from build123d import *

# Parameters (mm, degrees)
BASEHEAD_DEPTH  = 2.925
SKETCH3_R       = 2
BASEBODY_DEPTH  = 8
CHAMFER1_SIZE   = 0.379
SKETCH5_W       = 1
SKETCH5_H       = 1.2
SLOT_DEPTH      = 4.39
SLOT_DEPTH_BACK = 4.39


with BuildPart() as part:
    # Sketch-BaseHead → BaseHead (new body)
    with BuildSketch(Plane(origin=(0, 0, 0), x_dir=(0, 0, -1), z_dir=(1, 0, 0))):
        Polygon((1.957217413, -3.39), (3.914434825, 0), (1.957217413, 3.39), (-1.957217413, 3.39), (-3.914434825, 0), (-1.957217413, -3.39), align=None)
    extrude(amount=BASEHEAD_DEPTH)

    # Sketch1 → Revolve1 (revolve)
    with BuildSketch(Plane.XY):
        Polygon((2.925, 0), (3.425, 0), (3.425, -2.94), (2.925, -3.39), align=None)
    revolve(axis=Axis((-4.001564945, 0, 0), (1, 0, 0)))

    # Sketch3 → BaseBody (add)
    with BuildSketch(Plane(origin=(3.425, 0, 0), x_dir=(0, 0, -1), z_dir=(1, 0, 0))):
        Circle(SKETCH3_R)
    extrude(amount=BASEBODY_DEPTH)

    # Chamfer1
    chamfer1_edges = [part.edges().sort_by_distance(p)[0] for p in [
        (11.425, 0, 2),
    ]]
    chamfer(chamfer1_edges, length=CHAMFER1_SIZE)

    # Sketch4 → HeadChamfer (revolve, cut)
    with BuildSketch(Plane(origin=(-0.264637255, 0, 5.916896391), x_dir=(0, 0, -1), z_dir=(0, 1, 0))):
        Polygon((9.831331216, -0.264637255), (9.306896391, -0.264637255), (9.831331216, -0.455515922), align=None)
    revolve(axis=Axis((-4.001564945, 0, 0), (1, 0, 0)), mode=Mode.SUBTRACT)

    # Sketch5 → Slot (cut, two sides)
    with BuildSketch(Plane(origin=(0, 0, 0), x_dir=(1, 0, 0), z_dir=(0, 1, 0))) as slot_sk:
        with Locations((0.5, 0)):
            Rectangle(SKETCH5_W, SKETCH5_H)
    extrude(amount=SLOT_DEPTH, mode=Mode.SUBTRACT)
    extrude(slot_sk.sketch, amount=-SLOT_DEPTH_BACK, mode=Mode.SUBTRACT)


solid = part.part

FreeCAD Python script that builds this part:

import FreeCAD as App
import Part
import Sketcher
from FreeCAD import Vector
Q = App.Units.Quantity


def edges_at(feature, points):
    """Names of the edges that pass closest to the given points."""
    edges = feature.Shape.Edges
    near = lambda p: min(range(len(edges)), key=lambda i: edges[i].distToShape(Part.Vertex(*p))[0])
    return sorted({f"Edge{near(p) + 1}" for p in points})

doc = App.newDocument("Part")
body = doc.addObject("PartDesign::Body", "Body")

# Sketch on YZ plane
sketch1 = body.newObject("Sketcher::SketchObject", "Sketch")
sketch1.AttachmentSupport = (doc.getObject("YZ_Plane"), [""])
sketch1.MapMode = "FlatFace"
sketch1.addGeometry([
    Part.LineSegment(Vector(-3.39, -1.957217, 0), Vector(0, -3.914435, 0)),  # 0
    Part.LineSegment(Vector(0, -3.914435, 0), Vector(3.39, -1.957217, 0)),  # 1
    Part.LineSegment(Vector(3.39, -1.957217, 0), Vector(3.39, 1.957217, 0)),  # 2
    Part.LineSegment(Vector(3.39, 1.957217, 0), Vector(0, 3.914435, 0)),  # 3
    Part.LineSegment(Vector(0, 3.914435, 0), Vector(-3.39, 1.957217, 0)),  # 4
    Part.LineSegment(Vector(-3.39, 1.957217, 0), Vector(-3.39, -1.957217, 0)),  # 5
], False)
sketch1.addConstraint([
    Sketcher.Constraint("Coincident", 0, 2, 1, 1),
    Sketcher.Constraint("Coincident", 1, 2, 2, 1),
    Sketcher.Constraint("Coincident", 2, 2, 3, 1),
    Sketcher.Constraint("Coincident", 3, 2, 4, 1),
    Sketcher.Constraint("Coincident", 4, 2, 5, 1),
    Sketcher.Constraint("Coincident", 5, 2, 0, 1),
    Sketcher.Constraint("Vertical", 2),
    Sketcher.Constraint("Vertical", 5),
    Sketcher.Constraint("Symmetric", 0, 2, 3, 2, -1, 1),
    Sketcher.Constraint("Symmetric", 1, 2, 4, 2, -1, 1),
    Sketcher.Constraint("PointOnObject", 0, 2, -2),
    Sketcher.Constraint("Parallel", 0, 3),
    Sketcher.Constraint("Horizontal", 2, 2, 4, 2),
    Sketcher.Constraint("Angle", 0, Q("-30 deg")),
    Sketcher.Constraint("DistanceX", -1, 1, 1, 2, Q("3.39 mm")),
    Sketcher.Constraint("DistanceY", 2, 1, 2, 2, Q("3.914435 mm")),
])
pad1 = body.newObject("PartDesign::Pad", "Pad")
pad1.Profile = sketch1
pad1.Length = 2.925

# Sketch on XY plane
sketch2 = body.newObject("Sketcher::SketchObject", "Sketch001")
sketch2.AttachmentSupport = (doc.getObject("XY_Plane"), [""])
sketch2.MapMode = "FlatFace"
sketch2.addGeometry([
    Part.LineSegment(Vector(3.425, 0, 0), Vector(2.925, 0, 0)),
    Part.LineSegment(Vector(2.925, 0, 0), Vector(2.925, -3.39, 0)),
    Part.LineSegment(Vector(2.925, -3.39, 0), Vector(3.425, -2.94, 0)),
    Part.LineSegment(Vector(3.425, -2.94, 0), Vector(3.425, 0, 0)),
], False)
sketch2.addConstraint([
    Sketcher.Constraint("Coincident", 0, 2, 1, 1),
    Sketcher.Constraint("Coincident", 1, 2, 2, 1),
    Sketcher.Constraint("Coincident", 2, 2, 3, 1),
    Sketcher.Constraint("Coincident", 3, 2, 0, 1),
    Sketcher.Constraint("Horizontal", 0),
    Sketcher.Constraint("Vertical", 1),
    Sketcher.Constraint("Vertical", 3),
    Sketcher.Constraint("PointOnObject", 0, 2, -1),
    Sketcher.Constraint("DistanceX", 0, 2, 0, 1, Q("0.5 mm")),
    Sketcher.Constraint("DistanceY", 1, 2, 1, 1, Q("3.39 mm")),
    Sketcher.Constraint("DistanceY", 3, 1, 3, 2, Q("2.94 mm")),
    Sketcher.Constraint("DistanceX", -1, 1, 0, 2, Q("2.925 mm")),
])
revolution = body.newObject("PartDesign::Revolution", "Revolution")
revolution.Profile = sketch2
revolution.ReferenceAxis = (sketch2, ["H_Axis"])
revolution.Angle = 360

# Sketch on YZ plane
sketch3 = body.newObject("Sketcher::SketchObject", "Sketch002")
sketch3.AttachmentSupport = (doc.getObject("YZ_Plane"), [""])
sketch3.MapMode = "FlatFace"
sketch3.AttachmentOffset = App.Placement(Vector(0, 0, 3.425), App.Rotation())
sketch3.addGeometry(Part.Circle(Vector(0, 0, 0), Vector(0, 0, 1), 2), False)
sketch3.addConstraint([
    Sketcher.Constraint("Coincident", 0, 3, -1, 1),
    Sketcher.Constraint("Diameter", 0, Q("4 mm")),
])
pad2 = body.newObject("PartDesign::Pad", "Pad001")
pad2.Profile = sketch3
pad2.Length = 8
doc.recompute()

chamfer = body.newObject("PartDesign::Chamfer", "Chamfer")
chamfer.Base = (pad2, edges_at(pad2, [(11.425, 0, 2)]))
chamfer.Size = 0.379

# Sketch on XZ plane
sketch4 = body.newObject("Sketcher::SketchObject", "Sketch003")
sketch4.AttachmentSupport = (doc.getObject("XZ_Plane"), [""])
sketch4.MapMode = "FlatFace"
sketch4.addGeometry([
    Part.LineSegment(Vector(0, -3.914435, 0), Vector(0, -3.39, 0)),
    Part.LineSegment(Vector(0, -3.39, 0), Vector(0.190879, -3.914435, 0)),
    Part.LineSegment(Vector(0.190879, -3.914435, 0), Vector(0, -3.914435, 0)),
], False)
sketch4.addConstraint([
    Sketcher.Constraint("Coincident", 0, 2, 1, 1),
    Sketcher.Constraint("Coincident", 1, 2, 2, 1),
    Sketcher.Constraint("Coincident", 2, 2, 0, 1),
    Sketcher.Constraint("Vertical", 0),
    Sketcher.Constraint("Horizontal", 2),
    Sketcher.Constraint("PointOnObject", 0, 2, -2),
    Sketcher.Constraint("Angle", 1, Q("-70 deg")),
    Sketcher.Constraint("DistanceY", 0, 2, -1, 1, Q("3.39 mm")),
    Sketcher.Constraint("DistanceX", 2, 2, 2, 1, Q("0.190879 mm")),
])
groove = body.newObject("PartDesign::Groove", "Groove")
groove.Profile = sketch4
groove.ReferenceAxis = (sketch4, ["H_Axis"])
groove.Angle = 360

# Sketch on XZ plane
sketch5 = body.newObject("Sketcher::SketchObject", "Sketch004")
sketch5.AttachmentSupport = (doc.getObject("XZ_Plane"), [""])
sketch5.MapMode = "FlatFace"
sketch5.addGeometry([
    Part.LineSegment(Vector(0, -0.6, 0), Vector(0, 0.6, 0)),
    Part.LineSegment(Vector(0, 0.6, 0), Vector(1, 0.6, 0)),
    Part.LineSegment(Vector(1, 0.6, 0), Vector(1, -0.6, 0)),
    Part.LineSegment(Vector(1, -0.6, 0), Vector(0, -0.6, 0)),
], False)
sketch5.addConstraint([
    Sketcher.Constraint("Coincident", 0, 2, 1, 1),
    Sketcher.Constraint("Coincident", 1, 2, 2, 1),
    Sketcher.Constraint("Coincident", 2, 2, 3, 1),
    Sketcher.Constraint("Coincident", 3, 2, 0, 1),
    Sketcher.Constraint("Vertical", 0),
    Sketcher.Constraint("Horizontal", 1),
    Sketcher.Constraint("Vertical", 2),
    Sketcher.Constraint("Horizontal", 3),
    Sketcher.Constraint("Symmetric", 0, 2, 3, 2, -1, 1),
    Sketcher.Constraint("DistanceX", 1, 1, 1, 2, Q("1 mm")),
    Sketcher.Constraint("DistanceY", 0, 1, 0, 2, Q("1.2 mm")),
])
pocket1 = body.newObject("PartDesign::Pocket", "Pocket")
pocket1.Profile = sketch5
pocket1.Type = "ThroughAll"
pocket1.Midplane = True

doc.recompute()
